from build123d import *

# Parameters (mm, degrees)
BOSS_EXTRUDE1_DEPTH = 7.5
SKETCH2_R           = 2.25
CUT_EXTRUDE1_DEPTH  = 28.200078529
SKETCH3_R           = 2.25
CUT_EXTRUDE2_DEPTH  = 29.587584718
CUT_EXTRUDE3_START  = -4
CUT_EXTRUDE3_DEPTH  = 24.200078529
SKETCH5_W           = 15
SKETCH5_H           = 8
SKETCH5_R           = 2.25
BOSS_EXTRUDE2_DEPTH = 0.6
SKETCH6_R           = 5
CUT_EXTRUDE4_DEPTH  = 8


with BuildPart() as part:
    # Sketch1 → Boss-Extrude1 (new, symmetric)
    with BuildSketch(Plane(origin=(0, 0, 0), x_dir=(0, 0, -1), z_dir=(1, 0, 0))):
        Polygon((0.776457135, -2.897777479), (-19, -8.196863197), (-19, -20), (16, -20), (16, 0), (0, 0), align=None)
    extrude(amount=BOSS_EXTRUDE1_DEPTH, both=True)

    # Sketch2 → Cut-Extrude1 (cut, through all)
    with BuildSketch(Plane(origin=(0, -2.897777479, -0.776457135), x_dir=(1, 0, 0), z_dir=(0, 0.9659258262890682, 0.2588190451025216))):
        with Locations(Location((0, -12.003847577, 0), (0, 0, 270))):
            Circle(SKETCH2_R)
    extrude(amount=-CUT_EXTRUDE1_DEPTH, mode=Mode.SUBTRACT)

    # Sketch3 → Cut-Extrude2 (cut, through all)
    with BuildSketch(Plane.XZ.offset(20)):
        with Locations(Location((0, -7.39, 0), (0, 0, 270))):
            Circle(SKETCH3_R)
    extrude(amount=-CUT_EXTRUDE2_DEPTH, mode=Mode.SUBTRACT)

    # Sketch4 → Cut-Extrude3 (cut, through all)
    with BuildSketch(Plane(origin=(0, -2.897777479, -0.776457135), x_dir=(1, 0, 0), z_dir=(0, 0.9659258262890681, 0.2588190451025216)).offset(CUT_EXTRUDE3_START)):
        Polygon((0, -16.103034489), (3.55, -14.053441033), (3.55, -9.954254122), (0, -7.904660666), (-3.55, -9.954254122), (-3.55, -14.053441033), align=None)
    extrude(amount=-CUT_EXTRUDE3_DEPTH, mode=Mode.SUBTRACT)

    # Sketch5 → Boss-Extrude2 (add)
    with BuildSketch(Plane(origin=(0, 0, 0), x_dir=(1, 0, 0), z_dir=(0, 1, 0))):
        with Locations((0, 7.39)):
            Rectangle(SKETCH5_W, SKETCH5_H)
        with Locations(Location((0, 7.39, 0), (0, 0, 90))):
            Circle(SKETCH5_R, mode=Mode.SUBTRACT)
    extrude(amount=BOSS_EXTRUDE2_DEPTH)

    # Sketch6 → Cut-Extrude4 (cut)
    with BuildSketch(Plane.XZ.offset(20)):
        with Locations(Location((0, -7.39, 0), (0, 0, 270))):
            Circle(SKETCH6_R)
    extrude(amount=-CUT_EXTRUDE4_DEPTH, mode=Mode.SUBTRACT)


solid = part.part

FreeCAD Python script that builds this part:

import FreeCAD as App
import Part
import Sketcher
from FreeCAD import Vector
Q = App.Units.Quantity


def add_polygon(sketch, points):
    """Adds a closed chain of lines whose ends are joined by coincident constraints."""
    first, n = sketch.GeometryCount, len(points)
    for a, b in zip(points, points[1:] + points[:1]):
        sketch.addGeometry(Part.LineSegment(App.Vector(*a, 0), App.Vector(*b, 0)), False)
    for i in range(n):
        sketch.addConstraint(Sketcher.Constraint("Coincident", first + i, 2, first + (i + 1) % n, 1))

doc = App.newDocument("Part")
body = doc.addObject("PartDesign::Body", "Body")

# Sketch on YZ plane
sketch1 = doc.addObject("Sketcher::SketchObject", "Sketch")
body.addObject(sketch1)
sketch1.AttachmentSupport = (doc.YZ_Plane, [""])
sketch1.MapMode = "FlatFace"
add_polygon(sketch1, [(-2.9, -0.8), (-8.2, 19), (-20, 19), (-20, -16), (0, -16), (0, 0)])  # lines 0-5
sketch1.addConstraint([
    Sketcher.Constraint("Horizontal", 1),
    Sketcher.Constraint("Vertical", 2),
    Sketcher.Constraint("Horizontal", 3),
    Sketcher.Constraint("Vertical", 4),
    Sketcher.Constraint("Coincident", 4, 2, -1, 1),
    Sketcher.Constraint("Perpendicular", 0, 5),
    Sketcher.Constraint("DistanceX", 3, 1, 3, 2, 20.0),
    Sketcher.Constraint("DistanceY", 2, 2, 2, 1, 35.0),
    Sketcher.Constraint("DistanceY", 4, 1, 4, 2, 16.0),
    Sketcher.Constraint("Angle", 0, Q("105 deg")),
    Sketcher.Constraint("Distance", 5, 3.0),
])
pad1 = doc.addObject("PartDesign::Pad", "Pad")
body.addObject(pad1)
pad1.Profile = sketch1
pad1.Length = 15
pad1.Midplane = True

# Sketch on an angled plane
sketch2 = doc.addObject("Sketcher::SketchObject", "Sketch001")
body.addObject(sketch2)
sketch2.Placement = App.Placement(Vector(0, -2.897777, -0.776457), App.Rotation(Vector(1, 0, 0), Vector(0, 0.258819045, -0.965925826), Vector(0, 0.965925826, 0.258819045), "ZXY"))
sketch2.addGeometry(Part.Circle(Vector(0, -12, 0), Vector(0, 0, 1), 2.2), False)
sketch2.addConstraint([
    Sketcher.Constraint("PointOnObject", 0, 3, -2),
    Sketcher.Constraint("Diameter", 0, 4.5),
    Sketcher.Constraint("DistanceY", 0, 3, -1, 1, 12.003848),
])
pocket1 = doc.addObject("PartDesign::Pocket", "Pocket")
body.addObject(pocket1)
pocket1.Profile = sketch2
pocket1.Type = "ThroughAll"

# Sketch on XZ plane
sketch3 = doc.addObject("Sketcher::SketchObject", "Sketch002")
body.addObject(sketch3)
sketch3.AttachmentSupport = (doc.XZ_Plane, [""])
sketch3.MapMode = "FlatFace"
sketch3.AttachmentOffset = App.Placement(Vector(0, 0, 20), App.Rotation())
sketch3.addGeometry(Part.Circle(Vector(0, -7.4, 0), Vector(0, 0, 1), 2.2), False)
sketch3.addConstraint([
    Sketcher.Constraint("PointOnObject", 0, 3, -2),
    Sketcher.Constraint("Diameter", 0, 4.5),
    Sketcher.Constraint("DistanceY", 0, 3, -1, 1, 7.39),
])
pocket2 = doc.addObject("PartDesign::Pocket", "Pocket001")
body.addObject(pocket2)
pocket2.Profile = sketch3
pocket2.Type = "ThroughAll"

# Sketch on an angled plane
sketch4 = doc.addObject("Sketcher::SketchObject", "Sketch003")
body.addObject(sketch4)
sketch4.Placement = App.Placement(Vector(0, -6.761481, -1.811733), App.Rotation(Vector(1, 0, 0), Vector(0, 0.258819045, -0.965925826), Vector(0, 0.965925826, 0.258819045), "ZXY"))
add_polygon(sketch4, [(0, -16.1), (3.5, -14.1), (3.5, -10), (0, -7.9), (-3.5, -10), (-3.5, -14.1)])  # lines 0-5
sketch4.addConstraint([
    Sketcher.Constraint("Vertical", 1),
    Sketcher.Constraint("Vertical", 4),
    Sketcher.Constraint("Symmetric", 1, 2, 3, 2, -2),
    Sketcher.Constraint("PointOnObject", 2, 2, -2),
    Sketcher.Constraint("PointOnObject", 5, 2, -2),
    Sketcher.Constraint("Parallel", 0, 3),
    Sketcher.Constraint("Parallel", 2, 5),
    Sketcher.Constraint("Angle", 0, Q("30 deg")),
    Sketcher.Constraint("DistanceX", 3, 2, 1, 2, 7.1),
    Sketcher.Constraint("DistanceY", 1, 1, 1, 2, 4.099187),
    Sketcher.Constraint("DistanceY", 0, 2, -1, 1, 14.053441),
])
pocket3 = doc.addObject("PartDesign::Pocket", "Pocket002")
body.addObject(pocket3)
pocket3.Profile = sketch4
pocket3.Type = "ThroughAll"

# Sketch on XZ plane
sketch5 = doc.addObject("Sketcher::SketchObject", "Sketch004")
body.addObject(sketch5)
sketch5.AttachmentSupport = (doc.XZ_Plane, [""])
sketch5.MapMode = "FlatFace"
add_polygon(sketch5, [(-7.5, -11.4), (-7.5, -3.4), (7.5, -3.4), (7.5, -11.4)])  # lines 0-3
sketch5.addGeometry(Part.Circle(Vector(0, -7.4, 0), Vector(0, 0, 1), 2.2), False)  # 4
sketch5.addConstraint([
    Sketcher.Constraint("Vertical", 0),
    Sketcher.Constraint("Horizontal", 1),
    Sketcher.Constraint("Vertical", 2),
    Sketcher.Constraint("Horizontal", 3),
    Sketcher.Constraint("PointOnObject", 4, 3, -2),
    Sketcher.Constraint("Diameter", 4, 4.5),
    Sketcher.Constraint("DistanceX", 1, 1, 1, 2, 15.0),
    Sketcher.Constraint("DistanceY", 0, 1, 0, 2, 8.0),
    Sketcher.Constraint("DistanceY", 4, 3, 0, 2, 4.0),
    Sketcher.Constraint("DistanceX", 0, 2, -1, 1, 7.5),
    Sketcher.Constraint("DistanceY", 4, 3, -1, 1, 7.39),
])
pad2 = doc.addObject("PartDesign::Pad", "Pad001")
body.addObject(pad2)
pad2.Profile = sketch5
pad2.Length = 0.6
pad2.Reversed = True

# Sketch on XZ plane
sketch6 = doc.addObject("Sketcher::SketchObject", "Sketch005")
body.addObject(sketch6)
sketch6.AttachmentSupport = (doc.XZ_Plane, [""])
sketch6.MapMode = "FlatFace"
sketch6.AttachmentOffset = App.Placement(Vector(0, 0, 20), App.Rotation())
sketch6.addGeometry(Part.Circle(Vector(0, -7, 0), Vector(0, 0, 1), 5), False)
sketch6.addConstraint([
    Sketcher.Constraint("PointOnObject", 0, 3, -2),
    Sketcher.Constraint("Diameter", 0, 10.0),
    Sketcher.Constraint("DistanceY", 0, 3, -1, 1, 7.39),
])
pocket4 = doc.addObject("PartDesign::Pocket", "Pocket003")
body.addObject(pocket4)
pocket4.Profile = sketch6
pocket4.Length = 8

doc.recompute()
